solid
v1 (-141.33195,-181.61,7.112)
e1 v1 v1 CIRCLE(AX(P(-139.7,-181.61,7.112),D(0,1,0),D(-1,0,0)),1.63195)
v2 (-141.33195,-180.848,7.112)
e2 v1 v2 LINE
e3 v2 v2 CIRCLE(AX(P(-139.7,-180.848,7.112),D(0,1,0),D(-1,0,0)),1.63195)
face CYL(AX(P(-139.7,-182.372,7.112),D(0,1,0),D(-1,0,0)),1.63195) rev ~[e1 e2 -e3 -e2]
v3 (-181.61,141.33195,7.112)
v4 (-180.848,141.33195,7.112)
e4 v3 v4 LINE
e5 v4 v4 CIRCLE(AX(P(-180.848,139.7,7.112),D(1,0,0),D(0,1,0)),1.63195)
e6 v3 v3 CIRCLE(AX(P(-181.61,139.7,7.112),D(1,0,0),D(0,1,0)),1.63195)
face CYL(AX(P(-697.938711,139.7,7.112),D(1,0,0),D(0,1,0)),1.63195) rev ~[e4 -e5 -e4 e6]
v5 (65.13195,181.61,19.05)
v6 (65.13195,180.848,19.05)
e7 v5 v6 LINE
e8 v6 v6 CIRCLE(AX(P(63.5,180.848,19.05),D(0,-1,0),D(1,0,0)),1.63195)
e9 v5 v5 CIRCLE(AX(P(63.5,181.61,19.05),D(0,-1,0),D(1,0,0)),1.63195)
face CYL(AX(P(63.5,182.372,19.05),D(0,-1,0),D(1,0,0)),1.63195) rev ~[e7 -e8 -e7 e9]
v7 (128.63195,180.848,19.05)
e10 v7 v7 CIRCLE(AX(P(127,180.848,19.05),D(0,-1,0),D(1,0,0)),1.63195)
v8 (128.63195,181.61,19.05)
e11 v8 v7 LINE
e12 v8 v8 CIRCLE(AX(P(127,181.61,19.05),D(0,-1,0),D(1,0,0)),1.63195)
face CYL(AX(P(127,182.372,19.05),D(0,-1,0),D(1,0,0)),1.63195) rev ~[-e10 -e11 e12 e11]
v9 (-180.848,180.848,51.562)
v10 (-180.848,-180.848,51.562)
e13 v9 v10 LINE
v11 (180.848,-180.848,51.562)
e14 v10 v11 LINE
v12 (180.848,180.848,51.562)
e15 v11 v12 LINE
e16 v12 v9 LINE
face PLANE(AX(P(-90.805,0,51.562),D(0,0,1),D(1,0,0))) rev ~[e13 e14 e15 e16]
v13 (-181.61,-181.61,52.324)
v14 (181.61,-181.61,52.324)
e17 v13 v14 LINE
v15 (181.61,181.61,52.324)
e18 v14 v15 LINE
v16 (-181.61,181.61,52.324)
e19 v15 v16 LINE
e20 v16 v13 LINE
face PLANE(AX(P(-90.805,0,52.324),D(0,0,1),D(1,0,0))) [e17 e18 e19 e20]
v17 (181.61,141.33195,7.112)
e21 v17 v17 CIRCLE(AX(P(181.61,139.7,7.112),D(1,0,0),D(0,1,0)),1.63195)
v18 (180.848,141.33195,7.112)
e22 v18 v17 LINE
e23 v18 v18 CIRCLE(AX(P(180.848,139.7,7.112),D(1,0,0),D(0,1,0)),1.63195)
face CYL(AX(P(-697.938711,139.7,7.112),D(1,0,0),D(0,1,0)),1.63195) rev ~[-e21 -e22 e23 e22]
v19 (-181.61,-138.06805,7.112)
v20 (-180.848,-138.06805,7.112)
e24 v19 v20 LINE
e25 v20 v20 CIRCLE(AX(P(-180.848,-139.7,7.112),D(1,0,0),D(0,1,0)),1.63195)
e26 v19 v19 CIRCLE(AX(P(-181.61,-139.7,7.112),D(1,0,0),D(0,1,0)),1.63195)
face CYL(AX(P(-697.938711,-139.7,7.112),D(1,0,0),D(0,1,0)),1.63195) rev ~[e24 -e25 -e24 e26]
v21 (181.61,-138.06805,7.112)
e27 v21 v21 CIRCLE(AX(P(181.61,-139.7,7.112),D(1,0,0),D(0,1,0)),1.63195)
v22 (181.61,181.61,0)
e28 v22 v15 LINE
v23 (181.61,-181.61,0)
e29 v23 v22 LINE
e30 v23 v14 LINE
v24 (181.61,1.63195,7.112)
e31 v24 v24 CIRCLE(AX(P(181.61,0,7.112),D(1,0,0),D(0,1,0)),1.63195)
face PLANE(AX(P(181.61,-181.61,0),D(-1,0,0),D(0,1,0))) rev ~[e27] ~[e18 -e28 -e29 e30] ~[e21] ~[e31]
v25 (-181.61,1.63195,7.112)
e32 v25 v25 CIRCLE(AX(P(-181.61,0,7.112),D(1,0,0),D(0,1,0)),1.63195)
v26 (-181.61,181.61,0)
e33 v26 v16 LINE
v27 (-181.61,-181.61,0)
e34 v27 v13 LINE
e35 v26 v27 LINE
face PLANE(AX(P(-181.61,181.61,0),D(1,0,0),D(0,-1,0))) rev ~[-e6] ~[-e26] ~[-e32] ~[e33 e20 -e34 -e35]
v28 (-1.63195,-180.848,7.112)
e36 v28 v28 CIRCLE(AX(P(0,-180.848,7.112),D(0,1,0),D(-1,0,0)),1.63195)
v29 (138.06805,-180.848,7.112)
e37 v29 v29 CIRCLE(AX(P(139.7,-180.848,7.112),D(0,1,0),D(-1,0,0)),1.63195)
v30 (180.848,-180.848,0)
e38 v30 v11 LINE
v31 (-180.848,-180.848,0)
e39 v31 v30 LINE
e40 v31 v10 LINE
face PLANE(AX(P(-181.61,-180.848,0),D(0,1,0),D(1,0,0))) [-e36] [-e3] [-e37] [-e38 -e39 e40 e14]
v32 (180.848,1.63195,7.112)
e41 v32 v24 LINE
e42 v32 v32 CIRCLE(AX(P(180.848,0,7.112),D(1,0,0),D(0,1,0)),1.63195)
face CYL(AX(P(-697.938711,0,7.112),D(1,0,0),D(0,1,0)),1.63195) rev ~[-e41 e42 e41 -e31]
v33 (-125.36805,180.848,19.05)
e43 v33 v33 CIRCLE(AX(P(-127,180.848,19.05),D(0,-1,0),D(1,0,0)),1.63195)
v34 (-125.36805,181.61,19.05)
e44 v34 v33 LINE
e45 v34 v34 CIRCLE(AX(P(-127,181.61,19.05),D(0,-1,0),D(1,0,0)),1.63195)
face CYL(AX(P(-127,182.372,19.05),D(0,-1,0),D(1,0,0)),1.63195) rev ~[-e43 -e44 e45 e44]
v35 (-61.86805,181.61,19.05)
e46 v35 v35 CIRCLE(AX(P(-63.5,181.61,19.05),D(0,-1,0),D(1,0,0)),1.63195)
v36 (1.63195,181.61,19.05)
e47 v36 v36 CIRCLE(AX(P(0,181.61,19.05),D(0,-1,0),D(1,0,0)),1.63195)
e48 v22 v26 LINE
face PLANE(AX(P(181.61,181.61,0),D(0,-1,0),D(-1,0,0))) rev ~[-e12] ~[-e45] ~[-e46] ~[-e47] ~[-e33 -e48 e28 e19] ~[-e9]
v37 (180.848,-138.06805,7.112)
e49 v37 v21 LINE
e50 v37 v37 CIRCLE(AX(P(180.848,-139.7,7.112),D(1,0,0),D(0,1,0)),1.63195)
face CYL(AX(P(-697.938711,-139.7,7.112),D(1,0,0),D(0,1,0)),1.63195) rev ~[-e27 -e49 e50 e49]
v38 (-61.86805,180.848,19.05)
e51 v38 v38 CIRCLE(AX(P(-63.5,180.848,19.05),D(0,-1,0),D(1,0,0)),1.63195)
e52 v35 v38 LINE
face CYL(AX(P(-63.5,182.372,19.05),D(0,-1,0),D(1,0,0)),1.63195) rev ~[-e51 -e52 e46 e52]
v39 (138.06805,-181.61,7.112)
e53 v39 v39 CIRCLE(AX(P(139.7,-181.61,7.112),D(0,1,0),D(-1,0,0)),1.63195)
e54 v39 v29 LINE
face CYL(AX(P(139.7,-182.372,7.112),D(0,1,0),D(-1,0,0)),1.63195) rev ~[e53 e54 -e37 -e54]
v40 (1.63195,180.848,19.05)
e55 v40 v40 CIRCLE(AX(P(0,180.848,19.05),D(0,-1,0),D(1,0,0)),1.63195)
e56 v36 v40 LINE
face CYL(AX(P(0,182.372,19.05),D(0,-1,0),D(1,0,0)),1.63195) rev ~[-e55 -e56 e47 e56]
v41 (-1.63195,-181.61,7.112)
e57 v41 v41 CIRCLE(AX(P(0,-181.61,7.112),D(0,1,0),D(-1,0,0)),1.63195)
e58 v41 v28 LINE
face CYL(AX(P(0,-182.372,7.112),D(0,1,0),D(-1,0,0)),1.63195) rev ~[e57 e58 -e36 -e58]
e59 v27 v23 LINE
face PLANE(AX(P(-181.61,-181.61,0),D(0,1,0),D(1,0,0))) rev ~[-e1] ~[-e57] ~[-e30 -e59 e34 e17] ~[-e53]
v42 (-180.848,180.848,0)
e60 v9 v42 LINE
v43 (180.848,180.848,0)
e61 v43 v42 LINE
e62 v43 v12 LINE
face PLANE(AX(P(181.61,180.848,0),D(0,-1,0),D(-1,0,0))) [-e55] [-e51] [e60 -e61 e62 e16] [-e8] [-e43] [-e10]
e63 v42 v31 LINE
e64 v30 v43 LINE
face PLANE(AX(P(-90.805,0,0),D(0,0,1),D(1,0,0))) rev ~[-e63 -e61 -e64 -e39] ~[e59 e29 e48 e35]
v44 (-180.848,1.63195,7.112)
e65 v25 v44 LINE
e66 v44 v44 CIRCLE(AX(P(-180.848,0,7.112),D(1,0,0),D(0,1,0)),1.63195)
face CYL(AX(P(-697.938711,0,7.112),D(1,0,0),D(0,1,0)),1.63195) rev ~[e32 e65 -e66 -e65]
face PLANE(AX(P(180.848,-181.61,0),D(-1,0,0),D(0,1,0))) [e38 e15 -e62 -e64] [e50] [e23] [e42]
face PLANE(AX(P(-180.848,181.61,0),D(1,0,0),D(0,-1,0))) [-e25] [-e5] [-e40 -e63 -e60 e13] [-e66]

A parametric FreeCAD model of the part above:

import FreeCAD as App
import Part
import Sketcher
from FreeCAD import Vector
Q = App.Units.Quantity


def faces_at(feature, points):
    """Names of the faces that lie closest to the given points."""
    faces = feature.Shape.Faces
    near = lambda p: min(range(len(faces)), key=lambda i: faces[i].distToShape(Part.Vertex(*p))[0])
    return sorted({f"Face{near(p) + 1}" for p in points})


def add_polygon(sketch, points):
    """Adds a closed chain of lines whose ends are joined by coincident constraints."""
    first, n = sketch.GeometryCount, len(points)
    for a, b in zip(points, points[1:] + points[:1]):
        sketch.addGeometry(Part.LineSegment(App.Vector(*a, 0), App.Vector(*b, 0)), False)
    for i in range(n):
        sketch.addConstraint(Sketcher.Constraint("Coincident", first + i, 2, first + (i + 1) % n, 1))

doc = App.newDocument("Part")
body = doc.addObject("PartDesign::Body", "Body")

# Sketch on XY plane
sketch1 = body.newObject("Sketcher::SketchObject", "Sketch")
sketch1.AttachmentSupport = (doc.getObject("XY_Plane"), [""])
sketch1.MapMode = "FlatFace"
add_polygon(sketch1, [(-182, 182), (-182, -182), (182, -182), (182, 182)])  # lines 0-3
sketch1.addConstraint(Sketcher.Constraint("Vertical", 0))
sketch1.addConstraint(Sketcher.Constraint("Horizontal", 1))
sketch1.addConstraint(Sketcher.Constraint("Vertical", 2))
sketch1.addConstraint(Sketcher.Constraint("Horizontal", 3))
sketch1.addConstraint(Sketcher.Constraint("Symmetric", 0, 2, 2, 2, -1, 1))
sketch1.addConstraint(Sketcher.Constraint("Equal", 3, 0))
sketch1.addConstraint(Sketcher.Constraint("DistanceX", 1, 1, 1, 2, Q("14.3 in")))
pad1 = body.newObject("PartDesign::Pad", "Pad")
pad1.Profile = sketch1
pad1.Length = Q("2.06 in")
doc.recompute()

thickness = body.newObject("PartDesign::Thickness", "Thickness")
thickness.Base = (pad1, faces_at(pad1, [(0, 0, 0)]))
thickness.Value = Q("0.03 in")
thickness.Reversed = True
thickness.Join = "Arc"

# Sketch on XZ plane
sketch2 = body.newObject("Sketcher::SketchObject", "Sketch001")
sketch2.AttachmentSupport = (doc.getObject("XZ_Plane"), [""])
sketch2.MapMode = "FlatFace"
sketch2.AttachmentOffset = App.Placement(Vector(0, 0, 7.15 * 25.4), App.Rotation())
sketch2.addGeometry(Part.Circle(Vector(-139.7, 7.1, 0), Vector(0, 0, 1), 1.6), False)
sketch2.addGeometry(Part.Circle(Vector(0, 7.1, 0), Vector(0, 0, 1), 1.6), False)
sketch2.addGeometry(Part.Circle(Vector(139.7, 7.1, 0), Vector(0, 0, 1), 1.6), False)
sketch2.addConstraint(Sketcher.Constraint("Equal", 0, 1))
sketch2.addConstraint(Sketcher.Constraint("Equal", 1, 2))
sketch2.addConstraint(Sketcher.Constraint("Symmetric", 0, 3, 2, 3, -2))
sketch2.addConstraint(Sketcher.Constraint("PointOnObject", 1, 3, -2))
sketch2.addConstraint(Sketcher.Constraint("Horizontal", 0, 3, 1, 3))
sketch2.addConstraint(Sketcher.Constraint("DistanceX", 0, 3, 2, 3, Q("11 in")))
sketch2.addConstraint(Sketcher.Constraint("Diameter", 0, Q("0.1285 in")))
sketch2.addConstraint(Sketcher.Constraint("DistanceY", -1, 1, 0, 3, Q("0.28 in")))
doc.recompute()
hole = body.newObject("PartDesign::Hole", "Hole")
hole.Profile = sketch2
hole.ThreadType = "None"
hole.Diameter = Q("0.1285 in")
hole.DepthType = "Dimension"
hole.Depth = Q("0.03 in")
hole.DrillPoint = "Angled"
hole.DrillPointAngle = 118

# Sketch on YZ plane
sketch3 = body.newObject("Sketcher::SketchObject", "Sketch002")
sketch3.AttachmentSupport = (doc.getObject("YZ_Plane"), [""])
sketch3.MapMode = "FlatFace"
sketch3.AttachmentOffset = App.Placement(Vector(0, 0, -7.15 * 25.4), App.Rotation())
sketch3.addGeometry(Part.Circle(Vector(139.7, 7.1, 0), Vector(0, 0, 1), 1.6), False)
sketch3.addGeometry(Part.Circle(Vector(0, 7.1, 0), Vector(0, 0, 1), 1.6), False)
sketch3.addGeometry(Part.Circle(Vector(-139.7, 7.1, 0), Vector(0, 0, 1), 1.6), False)
sketch3.addConstraint(Sketcher.Constraint("Equal", 0, 1))
sketch3.addConstraint(Sketcher.Constraint("Equal", 1, 2))
sketch3.addConstraint(Sketcher.Constraint("Symmetric", 0, 3, 2, 3, -2))
sketch3.addConstraint(Sketcher.Constraint("PointOnObject", 1, 3, -2))
sketch3.addConstraint(Sketcher.Constraint("Horizontal", 0, 3, 1, 3))
sketch3.addConstraint(Sketcher.Constraint("DistanceX", 2, 3, 0, 3, Q("11 in")))
sketch3.addConstraint(Sketcher.Constraint("Diameter", 0, Q("0.1285 in")))
sketch3.addConstraint(Sketcher.Constraint("DistanceY", -1, 1, 0, 3, Q("0.28 in")))
doc.recompute()
hole2 = body.newObject("PartDesign::Hole", "Hole001")
hole2.Profile = sketch3
hole2.ThreadType = "None"
hole2.Diameter = Q("0.1285 in")
hole2.DepthType = "ThroughAll"
hole2.Reversed = True

# Sketch on XZ plane
sketch4 = body.newObject("Sketcher::SketchObject", "Sketch003")
sketch4.AttachmentSupport = (doc.getObject("XZ_Plane"), [""])
sketch4.MapMode = "FlatFace"
sketch4.AttachmentOffset = App.Placement(Vector(0, 0, -7.15 * 25.4), App.Rotation())
sketch4.addGeometry(Part.Circle(Vector(127, 19.1, 0), Vector(0, 0, 1), 1.6), False)
sketch4.addGeometry(Part.Circle(Vector(63.5, 19.1, 0), Vector(0, 0, 1), 1.6), False)
sketch4.addGeometry(Part.Circle(Vector(0, 19.1, 0), Vector(0, 0, 1), 1.6), False)
sketch4.addGeometry(Part.Circle(Vector(-63.5, 19.1, 0), Vector(0, 0, 1), 1.6), False)
sketch4.addGeometry(Part.Circle(Vector(-127, 19.1, 0), Vector(0, 0, 1), 1.6), False)
sketch4.addConstraint(Sketcher.Constraint("Equal", 0, 1))
sketch4.addConstraint(Sketcher.Constraint("Equal", 1, 2))
sketch4.addConstraint(Sketcher.Constraint("Equal", 2, 3))
sketch4.addConstraint(Sketcher.Constraint("Equal", 3, 4))
sketch4.addConstraint(Sketcher.Constraint("Symmetric", 1, 3, 3, 3, -2))
sketch4.addConstraint(Sketcher.Constraint("Symmetric", 0, 3, 4, 3, -2))
sketch4.addConstraint(Sketcher.Constraint("PointOnObject", 2, 3, -2))
sketch4.addConstraint(Sketcher.Constraint("Horizontal", 0, 3, 1, 3))
sketch4.addConstraint(Sketcher.Constraint("Horizontal", 1, 3, 2, 3))
sketch4.addConstraint(Sketcher.Constraint("DistanceX", -1, 1, 0, 3, Q("5 in")))
sketch4.addConstraint(Sketcher.Constraint("DistanceX", 3, 3, 1, 3, Q("5 in")))
sketch4.addConstraint(Sketcher.Constraint("Diameter", 0, Q("0.1285 in")))
sketch4.addConstraint(Sketcher.Constraint("DistanceY", -1, 1, 0, 3, Q("0.75 in")))
doc.recompute()
hole3 = body.newObject("PartDesign::Hole", "Hole002")
hole3.Profile = sketch4
hole3.ThreadType = "None"
hole3.Diameter = Q("0.1285 in")
hole3.DepthType = "Dimension"
hole3.Depth = Q("0.03 in")
hole3.DrillPoint = "Angled"
hole3.DrillPointAngle = 118
hole3.Reversed = True

doc.recompute()
